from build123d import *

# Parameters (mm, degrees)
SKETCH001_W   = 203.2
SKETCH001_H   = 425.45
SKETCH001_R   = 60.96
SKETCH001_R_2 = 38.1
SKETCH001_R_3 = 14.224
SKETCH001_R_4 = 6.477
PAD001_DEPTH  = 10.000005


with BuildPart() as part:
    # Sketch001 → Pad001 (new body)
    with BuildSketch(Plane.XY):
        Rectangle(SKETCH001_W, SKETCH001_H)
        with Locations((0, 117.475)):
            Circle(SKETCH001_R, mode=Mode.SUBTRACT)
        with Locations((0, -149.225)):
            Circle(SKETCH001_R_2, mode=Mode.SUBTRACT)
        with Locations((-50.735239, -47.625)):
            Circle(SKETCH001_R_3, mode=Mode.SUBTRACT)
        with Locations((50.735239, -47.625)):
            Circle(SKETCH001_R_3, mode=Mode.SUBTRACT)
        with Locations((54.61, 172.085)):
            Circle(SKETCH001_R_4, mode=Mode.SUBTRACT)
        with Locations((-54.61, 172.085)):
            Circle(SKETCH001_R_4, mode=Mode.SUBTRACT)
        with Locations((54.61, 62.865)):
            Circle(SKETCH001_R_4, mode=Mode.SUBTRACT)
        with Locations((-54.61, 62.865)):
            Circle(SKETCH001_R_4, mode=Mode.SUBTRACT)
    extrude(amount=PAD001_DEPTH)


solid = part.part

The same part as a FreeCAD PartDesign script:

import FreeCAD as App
import Part
import Sketcher
Q = App.Units.Quantity


def add_polygon(sketch, points):
    """Adds a closed chain of lines whose ends are joined by coincident constraints."""
    first, n = sketch.GeometryCount, len(points)
    for a, b in zip(points, points[1:] + points[:1]):
        sketch.addGeometry(Part.LineSegment(App.Vector(*a, 0), App.Vector(*b, 0)), False)
    for i in range(n):
        sketch.addConstraint(Sketcher.Constraint("Coincident", first + i, 2, first + (i + 1) % n, 1))

doc = App.newDocument("Part")
body = doc.addObject("PartDesign::Body", "Body")

# Sketch on XY plane
sketch1 = doc.addObject("Sketcher::SketchObject", "Sketch")
body.addObject(sketch1)
sketch1.AttachmentSupport = (doc.XY_Plane, [""])
sketch1.MapMode = "FlatFace"
add_polygon(sketch1, [(-101.6, 212.725), (-101.6, -212.725), (101.6, -212.725), (101.6, 212.725)])  # lines 0-3
sketch1.addGeometry(Part.Circle(App.Vector(-50.735239, -47.625, 0), App.Vector(0, 0, 1), 14.224), False)  # 4
sketch1.addGeometry(Part.Circle(App.Vector(0, -149.225, 0), App.Vector(0, 0, 1), 38.1), False)  # 5
sketch1.addGeometry(Part.Circle(App.Vector(50.735239, -47.625, 0), App.Vector(0, 0, 1), 14.224), False)  # 6
sketch1.addGeometry(Part.Circle(App.Vector(-54.61, 62.865, 0), App.Vector(0, 0, 1), 6.477), False)  # 7
sketch1.addGeometry(Part.Circle(App.Vector(-54.61, 172.085, 0), App.Vector(0, 0, 1), 6.477), False)  # 8
sketch1.addGeometry(Part.Circle(App.Vector(54.61, 62.865, 0), App.Vector(0, 0, 1), 6.477), False)  # 9
sketch1.addGeometry(Part.Circle(App.Vector(0, 117.475, 0), App.Vector(0, 0, 1), 60.96), False)  # 10
sketch1.addGeometry(Part.Circle(App.Vector(54.61, 172.085, 0), App.Vector(0, 0, 1), 6.477), False)  # 11
sketch1.addConstraint([
    Sketcher.Constraint("Vertical", 0),
    Sketcher.Constraint("Horizontal", 1),
    Sketcher.Constraint("Vertical", 2),
    Sketcher.Constraint("Horizontal", 3),
    Sketcher.Constraint("Equal", 4, 6),
    Sketcher.Constraint("Equal", 7, 8),
    Sketcher.Constraint("Equal", 8, 9),
    Sketcher.Constraint("Equal", 9, 11),
    Sketcher.Constraint("Symmetric", 0, 2, 2, 2, -1, 1),
    Sketcher.Constraint("Symmetric", 4, 3, 6, 3, -2),
    Sketcher.Constraint("Symmetric", 7, 3, 9, 3, -2),
    Sketcher.Constraint("Symmetric", 8, 3, 11, 3, -2),
    Sketcher.Constraint("PointOnObject", 5, 3, -2),
    Sketcher.Constraint("PointOnObject", 10, 3, -2),
    Sketcher.Constraint("Vertical", 7, 3, 8, 3),
    Sketcher.Constraint("Diameter", 5, Q("3 in")),
    Sketcher.Constraint("Diameter", 10, Q("4.8 in")),
    Sketcher.Constraint("Diameter", 4, Q("1.12 in")),
    Sketcher.Constraint("Diameter", 7, Q("0.51 in")),
    Sketcher.Constraint("DistanceX", 1, 1, 1, 2, Q("8 in")),
    Sketcher.Constraint("DistanceY", 5, 3, 4, 3, Q("4 in")),
    Sketcher.Constraint("DistanceY", 0, 2, 0, 1, Q("16.75 in")),
    Sketcher.Constraint("DistanceY", 7, 3, 8, 3, Q("4.3 in")),
    Sketcher.Constraint("DistanceX", 7, 3, 9, 3, Q("4.3 in")),
    Sketcher.Constraint("DistanceY", 4, 3, 10, 3, Q("6.5 in")),
    Sketcher.Constraint("DistanceY", 0, 2, 5, 3, Q("2.5 in")),
    Sketcher.Constraint("DistanceY", 11, 3, 2, 2, Q("1.6 in")),
    Sketcher.Constraint("DistanceX", 4, 3, -1, 1, 50.735239),
])
pad1 = doc.addObject("PartDesign::Pad", "Pad")
body.addObject(pad1)
pad1.Profile = sketch1
pad1.Length = 10.000005

doc.recompute()
